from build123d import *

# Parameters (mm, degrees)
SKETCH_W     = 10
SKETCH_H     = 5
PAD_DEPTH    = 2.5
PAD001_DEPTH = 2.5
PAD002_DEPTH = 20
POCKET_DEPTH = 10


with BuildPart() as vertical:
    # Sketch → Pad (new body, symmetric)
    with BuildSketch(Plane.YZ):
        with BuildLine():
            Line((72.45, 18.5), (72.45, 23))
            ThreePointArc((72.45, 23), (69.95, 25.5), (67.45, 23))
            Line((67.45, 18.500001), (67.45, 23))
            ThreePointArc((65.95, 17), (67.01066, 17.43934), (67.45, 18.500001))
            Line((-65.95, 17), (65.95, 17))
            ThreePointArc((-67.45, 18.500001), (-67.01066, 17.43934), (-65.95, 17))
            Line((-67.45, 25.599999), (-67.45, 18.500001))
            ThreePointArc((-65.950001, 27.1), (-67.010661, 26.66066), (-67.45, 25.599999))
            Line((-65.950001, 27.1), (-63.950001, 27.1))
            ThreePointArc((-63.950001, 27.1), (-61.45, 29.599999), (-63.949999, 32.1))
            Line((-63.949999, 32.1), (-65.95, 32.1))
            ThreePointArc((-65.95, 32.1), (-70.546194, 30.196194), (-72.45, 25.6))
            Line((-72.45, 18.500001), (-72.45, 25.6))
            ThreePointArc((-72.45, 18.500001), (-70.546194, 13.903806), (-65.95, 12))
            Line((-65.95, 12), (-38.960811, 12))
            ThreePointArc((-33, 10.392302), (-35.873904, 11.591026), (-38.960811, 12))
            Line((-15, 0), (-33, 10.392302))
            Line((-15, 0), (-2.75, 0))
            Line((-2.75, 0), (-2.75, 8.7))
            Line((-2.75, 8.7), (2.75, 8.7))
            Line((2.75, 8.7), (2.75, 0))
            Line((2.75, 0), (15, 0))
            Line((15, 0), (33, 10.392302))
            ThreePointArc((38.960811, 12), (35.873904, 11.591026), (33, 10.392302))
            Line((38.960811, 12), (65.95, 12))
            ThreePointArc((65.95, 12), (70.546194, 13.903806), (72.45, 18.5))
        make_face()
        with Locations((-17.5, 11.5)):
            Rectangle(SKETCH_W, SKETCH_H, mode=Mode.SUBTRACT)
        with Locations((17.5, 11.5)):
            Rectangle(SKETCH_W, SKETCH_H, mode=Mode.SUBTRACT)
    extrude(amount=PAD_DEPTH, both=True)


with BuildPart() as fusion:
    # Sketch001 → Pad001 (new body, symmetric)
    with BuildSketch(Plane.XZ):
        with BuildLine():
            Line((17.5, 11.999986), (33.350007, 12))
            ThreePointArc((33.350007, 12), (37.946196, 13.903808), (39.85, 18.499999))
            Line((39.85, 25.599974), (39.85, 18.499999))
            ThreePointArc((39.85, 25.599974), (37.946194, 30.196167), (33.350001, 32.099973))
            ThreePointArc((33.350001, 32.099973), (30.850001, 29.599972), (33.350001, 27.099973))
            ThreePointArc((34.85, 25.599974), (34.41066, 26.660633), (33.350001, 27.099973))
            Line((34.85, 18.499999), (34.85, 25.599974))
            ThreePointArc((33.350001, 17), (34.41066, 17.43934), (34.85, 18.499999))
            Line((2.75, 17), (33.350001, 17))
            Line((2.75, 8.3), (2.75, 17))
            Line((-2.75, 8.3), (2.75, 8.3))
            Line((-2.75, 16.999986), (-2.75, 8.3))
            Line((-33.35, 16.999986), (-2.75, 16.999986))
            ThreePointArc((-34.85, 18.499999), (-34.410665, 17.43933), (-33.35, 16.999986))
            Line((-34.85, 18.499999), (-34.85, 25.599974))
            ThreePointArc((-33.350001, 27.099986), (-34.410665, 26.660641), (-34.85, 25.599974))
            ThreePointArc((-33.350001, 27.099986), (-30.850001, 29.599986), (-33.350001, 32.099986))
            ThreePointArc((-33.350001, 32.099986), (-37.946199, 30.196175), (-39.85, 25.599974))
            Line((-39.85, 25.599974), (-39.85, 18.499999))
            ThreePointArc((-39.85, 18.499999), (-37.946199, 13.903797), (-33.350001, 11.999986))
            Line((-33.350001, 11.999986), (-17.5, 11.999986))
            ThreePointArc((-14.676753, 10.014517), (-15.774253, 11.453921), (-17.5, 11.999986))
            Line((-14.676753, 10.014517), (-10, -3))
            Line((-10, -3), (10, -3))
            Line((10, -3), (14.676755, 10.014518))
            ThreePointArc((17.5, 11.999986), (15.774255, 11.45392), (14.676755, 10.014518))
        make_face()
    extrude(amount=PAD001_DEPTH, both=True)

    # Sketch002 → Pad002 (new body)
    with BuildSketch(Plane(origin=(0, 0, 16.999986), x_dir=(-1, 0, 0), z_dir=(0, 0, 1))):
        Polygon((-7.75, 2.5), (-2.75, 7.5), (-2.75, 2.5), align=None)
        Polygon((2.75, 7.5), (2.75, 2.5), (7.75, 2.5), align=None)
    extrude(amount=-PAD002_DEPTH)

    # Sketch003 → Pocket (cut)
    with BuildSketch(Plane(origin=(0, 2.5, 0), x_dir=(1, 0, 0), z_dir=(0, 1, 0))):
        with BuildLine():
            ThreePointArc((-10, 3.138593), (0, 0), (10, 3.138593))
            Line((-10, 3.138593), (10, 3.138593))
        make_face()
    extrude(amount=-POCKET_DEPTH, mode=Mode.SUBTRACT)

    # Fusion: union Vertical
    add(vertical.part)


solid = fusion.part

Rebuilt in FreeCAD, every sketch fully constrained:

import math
import FreeCAD as App
import Part
import Sketcher
from FreeCAD import Vector
Q = App.Units.Quantity


def add_polygon(sketch, points):
    """Adds a closed chain of lines whose ends are joined by coincident constraints."""
    first, n = sketch.GeometryCount, len(points)
    for a, b in zip(points, points[1:] + points[:1]):
        sketch.addGeometry(Part.LineSegment(App.Vector(*a, 0), App.Vector(*b, 0)), False)
    for i in range(n):
        sketch.addConstraint(Sketcher.Constraint("Coincident", first + i, 2, first + (i + 1) % n, 1))

doc = App.newDocument("Part")
body = doc.addObject("PartDesign::Body", "Body")

# Sketch on YZ plane
sketch1 = doc.addObject("Sketcher::SketchObject", "Sketch")
body.addObject(sketch1)
sketch1.AttachmentSupport = (doc.YZ_Plane, [""])
sketch1.MapMode = "FlatFace"
sketch1.addGeometry(Part.LineSegment(Vector(72.45, 18.5, 0), Vector(72.45, 23, 0)), False)  # 0
sketch1.addGeometry(Part.ArcOfCircle(Part.Circle(Vector(69.95, 23, 0), Vector(0, 0, 1), 2.5), math.radians(0), math.radians(180)), False)  # 1
sketch1.addGeometry(Part.LineSegment(Vector(67.45, 23, 0), Vector(67.45, 18.500001, 0)), False)  # 2
sketch1.addGeometry(Part.ArcOfCircle(Part.Circle(Vector(65.949999, 18.500001, 0), Vector(0, 0, 1), 1.500001), math.radians(-89.999978), math.radians(0.000016)), False)  # 3
sketch1.addGeometry(Part.LineSegment(Vector(65.95, 17, 0), Vector(-65.95, 17, 0)), False)  # 4
sketch1.addGeometry(Part.ArcOfCircle(Part.Circle(Vector(-65.949999, 18.500001, 0), Vector(0, 0, 1), 1.500001), math.radians(179.999984), math.radians(269.999978)), False)  # 5
sketch1.addGeometry(Part.LineSegment(Vector(-67.45, 18.500001, 0), Vector(-67.45, 25.599999, 0)), False)  # 6
sketch1.addGeometry(Part.ArcOfCircle(Part.Circle(Vector(-65.950001, 25.600001, 0), Vector(0, 0, 1), 1.499999), math.radians(89.999995), math.radians(180.000081)), False)  # 7
sketch1.addGeometry(Part.LineSegment(Vector(-65.950001, 27.1, 0), Vector(-63.950001, 27.1, 0)), False)  # 8
sketch1.addGeometry(Part.ArcOfCircle(Part.Circle(Vector(-63.95, 29.6, 0), Vector(0, 0, 1), 2.5), math.radians(-90.000023), math.radians(89.999977)), False)  # 9
sketch1.addGeometry(Part.LineSegment(Vector(-63.949999, 32.1, 0), Vector(-65.95, 32.1, 0)), False)  # 10
sketch1.addGeometry(Part.ArcOfCircle(Part.Circle(Vector(-65.95, 25.6, 0), Vector(0, 0, 1), 6.5), math.radians(90.000002), math.radians(179.999998)), False)  # 11
sketch1.addGeometry(Part.LineSegment(Vector(-72.45, 25.6, 0), Vector(-72.45, 18.500001, 0)), False)  # 12
sketch1.addGeometry(Part.ArcOfCircle(Part.Circle(Vector(-65.95, 18.5, 0), Vector(0, 0, 1), 6.5), math.radians(179.999994), math.radians(269.999998)), False)  # 13
sketch1.addGeometry(Part.LineSegment(Vector(-65.95, 12, 0), Vector(-38.960811, 12, 0)), False)  # 14
sketch1.addGeometry(Part.ArcOfCircle(Part.Circle(Vector(-38.960769, 0.145952, 0), Vector(0, 0, 1), 11.854048), math.radians(59.811485), math.radians(90.000203)), False)  # 15
sketch1.addGeometry(Part.LineSegment(Vector(-33, 10.392302, 0), Vector(-15, 0, 0)), False)  # 16
sketch1.addGeometry(Part.LineSegment(Vector(-15, 0, 0), Vector(-2.75, 0, 0)), False)  # 17
sketch1.addGeometry(Part.LineSegment(Vector(-2.75, 0, 0), Vector(-2.75, 8.7, 0)), False)  # 18
sketch1.addGeometry(Part.LineSegment(Vector(-2.75, 8.7, 0), Vector(2.75, 8.7, 0)), False)  # 19
sketch1.addGeometry(Part.LineSegment(Vector(2.75, 8.7, 0), Vector(2.75, 0, 0)), False)  # 20
sketch1.addGeometry(Part.LineSegment(Vector(2.75, 0, 0), Vector(15, 0, 0)), False)  # 21
sketch1.addGeometry(Part.LineSegment(Vector(15, 0, 0), Vector(33, 10.392302, 0)), False)  # 22
sketch1.addGeometry(Part.ArcOfCircle(Part.Circle(Vector(38.960769, 0.145952, 0), Vector(0, 0, 1), 11.854048), math.radians(89.999797), math.radians(120.188515)), False)  # 23
sketch1.addGeometry(Part.LineSegment(Vector(38.960811, 12, 0), Vector(65.95, 12, 0)), False)  # 24
sketch1.addGeometry(Part.ArcOfCircle(Part.Circle(Vector(65.95, 18.5, 0), Vector(0, 0, 1), 6.5), math.radians(-89.999998), math.radians(-0.000002)), False)  # 25
add_polygon(sketch1, [(-12.5, 9), (-22.5, 9), (-22.5, 14), (-12.5, 14)])  # lines 26-29
add_polygon(sketch1, [(22.5, 9), (12.5, 9), (12.5, 14), (22.5, 14)])  # lines 30-33
sketch1.addConstraint([
    Sketcher.Constraint("Tangent", 0, 2, 1, 1),
    Sketcher.Constraint("Tangent", 1, 2, 2, 1),
    Sketcher.Constraint("Tangent", 2, 2, 3, 2),
    Sketcher.Constraint("Tangent", 3, 1, 4, 1),
    Sketcher.Constraint("Tangent", 4, 2, 5, 2),
    Sketcher.Constraint("Tangent", 5, 1, 6, 1),
    Sketcher.Constraint("Tangent", 6, 2, 7, 2),
    Sketcher.Constraint("Tangent", 7, 1, 8, 1),
    Sketcher.Constraint("Tangent", 8, 2, 9, 1),
    Sketcher.Constraint("Tangent", 9, 2, 10, 1),
    Sketcher.Constraint("Tangent", 10, 2, 11, 1),
    Sketcher.Constraint("Tangent", 11, 2, 12, 1),
    Sketcher.Constraint("Tangent", 12, 2, 13, 1),
    Sketcher.Constraint("Tangent", 13, 2, 14, 1),
    Sketcher.Constraint("Coincident", 14, 2, 15, 2),
    Sketcher.Constraint("Coincident", 15, 1, 16, 1),
    Sketcher.Constraint("Coincident", 16, 2, 17, 1),
    Sketcher.Constraint("Coincident", 17, 2, 18, 1),
    Sketcher.Constraint("Coincident", 18, 2, 19, 1),
    Sketcher.Constraint("Coincident", 19, 2, 20, 1),
    Sketcher.Constraint("Coincident", 20, 2, 21, 1),
    Sketcher.Constraint("Coincident", 21, 2, 22, 1),
    Sketcher.Constraint("Coincident", 22, 2, 23, 2),
    Sketcher.Constraint("Coincident", 23, 1, 24, 1),
    Sketcher.Constraint("Tangent", 24, 2, 25, 1),
    Sketcher.Constraint("Tangent", 25, 2, 0, 1),
    Sketcher.Constraint("Vertical", 0),
    Sketcher.Constraint("Vertical", 2),
    Sketcher.Constraint("Horizontal", 4),
    Sketcher.Constraint("Vertical", 6),
    Sketcher.Constraint("Horizontal", 8),
    Sketcher.Constraint("Horizontal", 10),
    Sketcher.Constraint("Vertical", 12),
    Sketcher.Constraint("Horizontal", 14),
    Sketcher.Constraint("Horizontal", 17),
    Sketcher.Constraint("Vertical", 18),
    Sketcher.Constraint("Horizontal", 19),
    Sketcher.Constraint("Vertical", 20),
    Sketcher.Constraint("Horizontal", 21),
    Sketcher.Constraint("Horizontal", 24),
    Sketcher.Constraint("Horizontal", 26),
    Sketcher.Constraint("Vertical", 27),
    Sketcher.Constraint("Horizontal", 28),
    Sketcher.Constraint("Vertical", 29),
    Sketcher.Constraint("Horizontal", 30),
    Sketcher.Constraint("Vertical", 31),
    Sketcher.Constraint("Horizontal", 32),
    Sketcher.Constraint("Vertical", 33),
    Sketcher.Constraint("Coincident", 11, 3, 7, 3),
    Sketcher.Constraint("Coincident", 13, 3, 5, 3),
    Sketcher.Constraint("Coincident", 25, 3, 3, 3),
    Sketcher.Constraint("Equal", 3, 5),
    Sketcher.Constraint("Equal", 5, 7),
    Sketcher.Constraint("Equal", 1, 9),
    Sketcher.Constraint("Equal", 15, 23),
    Sketcher.Constraint("Symmetric", 17, 2, 20, 2, -1, 1),
    Sketcher.Constraint("Symmetric", 16, 2, 21, 2, -2),
    Sketcher.Constraint("Symmetric", 15, 1, 22, 2, -2),
    Sketcher.Constraint("Symmetric", 29, 2, 30, 2, -2),
    Sketcher.Constraint("Symmetric", 27, 2, 32, 2, -2),
    Sketcher.Constraint("Equal", 14, 24),
    Sketcher.Constraint("Radius", 1, Q("2.5 mm")),
    Sketcher.Constraint("Radius", 3, Q("1.500001 mm")),
    Sketcher.Constraint("DistanceX", 8, 1, 8, 2, Q("2 mm")),
    Sketcher.Constraint("DistanceX", 26, 2, 26, 1, Q("10 mm")),
    Sketcher.Constraint("DistanceY", 27, 1, 27, 2, Q("5 mm")),
    Sketcher.Constraint("Angle", 16, Q("-29.999993 deg")),
    Sketcher.Constraint("DistanceX", 4, 2, 4, 1, Q("131.9 mm")),
    Sketcher.Constraint("DistanceX", 19, 1, 19, 2, Q("5.5 mm")),
    Sketcher.Constraint("DistanceY", 0, 1, 0, 2, Q("4.5 mm")),
    Sketcher.Constraint("DistanceY", 12, 2, 12, 1, Q("7.099999 mm")),
    Sketcher.Constraint("DistanceY", 18, 1, 18, 2, Q("8.7 mm")),
    Sketcher.Constraint("DistanceY", -1, 1, 1, 3, Q("23 mm")),
    Sketcher.Constraint("DistanceX", 15, 1, -1, 1, Q("33 mm")),
    Sketcher.Constraint("DistanceX", 16, 2, -1, 1, Q("15 mm")),
    Sketcher.Constraint("DistanceY", -1, 1, 26, 2, Q("9 mm")),
    Sketcher.Constraint("DistanceX", 26, 2, -1, 1, Q("22.5 mm")),
    Sketcher.Constraint("DistanceX", -1, 1, 1, 3, Q("69.95 mm")),
    Sketcher.Constraint("Radius", 15, Q("11.854048 mm")),
    Sketcher.Constraint("DistanceX", 14, 1, 14, 2, Q("26.989189 mm")),
])
pad1 = doc.addObject("PartDesign::Pad", "Pad")
body.addObject(pad1)
pad1.Profile = sketch1
pad1.Length = 5
pad1.Midplane = True
body2 = doc.addObject("PartDesign::Body", "Body001")
body2.AllowCompound = True

# Sketch on XZ plane
sketch2 = doc.addObject("Sketcher::SketchObject", "Sketch001")
body2.addObject(sketch2)
sketch2.AttachmentSupport = (doc.getObject("XZ_Plane001"), [""])
sketch2.MapMode = "FlatFace"
sketch2.addGeometry([
    Part.LineSegment(Vector(17.5, 11.999986, 0), Vector(33.350007, 12, 0)),  # 0
    Part.ArcOfCircle(Part.Circle(Vector(33.35, 18.5, 0), Vector(0, 0, 1), 6.5), math.radians(-89.999936), math.radians(-0.000011)),  # 1
    Part.LineSegment(Vector(39.85, 18.499999, 0), Vector(39.85, 25.599974, 0)),  # 2
    Part.ArcOfCircle(Part.Circle(Vector(33.35, 25.599973, 0), Vector(0, 0, 1), 6.5), math.radians(0.000011), math.radians(89.999989)),  # 3
    Part.ArcOfCircle(Part.Circle(Vector(33.350001, 29.599973, 0), Vector(0, 0, 1), 2.5), math.radians(90), math.radians(270)),  # 4
    Part.ArcOfCircle(Part.Circle(Vector(33.349999, 25.599972, 0), Vector(0, 0, 1), 1.500001), math.radians(0.000061), math.radians(89.999939)),  # 5
    Part.LineSegment(Vector(34.85, 25.599974, 0), Vector(34.85, 18.499999, 0)),  # 6
    Part.ArcOfCircle(Part.Circle(Vector(33.349999, 18.500001, 0), Vector(0, 0, 1), 1.500001), math.radians(-89.999939), math.radians(-0.000061)),  # 7
    Part.LineSegment(Vector(33.350001, 17, 0), Vector(2.75, 17, 0)),  # 8
    Part.LineSegment(Vector(2.75, 17, 0), Vector(2.75, 8.3, 0)),  # 9
    Part.LineSegment(Vector(2.75, 8.3, 0), Vector(-2.75, 8.3, 0)),  # 10
    Part.LineSegment(Vector(-2.75, 8.3, 0), Vector(-2.75, 16.999986, 0)),  # 11
    Part.LineSegment(Vector(-2.75, 16.999986, 0), Vector(-33.35, 16.999986, 0)),  # 12
    Part.ArcOfCircle(Part.Circle(Vector(-33.350001, 18.499985, 0), Vector(0, 0, 1), 1.499999), math.radians(179.999461), math.radians(270.000043)),  # 13
    Part.LineSegment(Vector(-34.85, 18.499999, 0), Vector(-34.85, 25.599974, 0)),  # 14
    Part.ArcOfCircle(Part.Circle(Vector(-33.349999, 25.599985, 0), Vector(0, 0, 1), 1.500001), math.radians(90.000061), math.radians(180.000436)),  # 15
    Part.ArcOfCircle(Part.Circle(Vector(-33.350001, 29.599986, 0), Vector(0, 0, 1), 2.5), math.radians(-90), math.radians(90)),  # 16
    Part.ArcOfCircle(Part.Circle(Vector(-33.35, 25.599986, 0), Vector(0, 0, 1), 6.5), math.radians(90.000011), math.radians(180.000103)),  # 17
    Part.LineSegment(Vector(-39.85, 25.599974, 0), Vector(-39.85, 18.499999, 0)),  # 18
    Part.ArcOfCircle(Part.Circle(Vector(-33.35, 18.499986, 0), Vector(0, 0, 1), 6.5), math.radians(179.999888), math.radians(269.999989)),  # 19
    Part.LineSegment(Vector(-33.350001, 11.999986, 0), Vector(-17.5, 11.999986, 0)),  # 20
    Part.ArcOfCircle(Part.Circle(Vector(-17.5, 8.999987, 0), Vector(0, 0, 1), 2.999999), math.radians(19.765829), math.radians(90.000006)),  # 21
    Part.LineSegment(Vector(-14.676753, 10.014517, 0), Vector(-10, -3, 0)),  # 22
    Part.LineSegment(Vector(-10, -3, 0), Vector(10, -3, 0)),  # 23
    Part.LineSegment(Vector(10, -3, 0), Vector(14.676755, 10.014518, 0)),  # 24
    Part.ArcOfCircle(Part.Circle(Vector(17.500005, 8.999983, 0), Vector(0, 0, 1), 3.000003), math.radians(90.000087), math.radians(160.234089)),  # 25
], False)
sketch2.addConstraint([
    Sketcher.Constraint("Coincident", 0, 2, 1, 1),
    Sketcher.Constraint("Coincident", 1, 2, 2, 1),
    Sketcher.Constraint("Coincident", 2, 2, 3, 1),
    Sketcher.Constraint("Coincident", 3, 2, 4, 1),
    Sketcher.Constraint("Coincident", 4, 2, 5, 2),
    Sketcher.Constraint("Coincident", 5, 1, 6, 1),
    Sketcher.Constraint("Coincident", 6, 2, 7, 2),
    Sketcher.Constraint("Coincident", 7, 1, 8, 1),
    Sketcher.Constraint("Coincident", 8, 2, 9, 1),
    Sketcher.Constraint("Coincident", 9, 2, 10, 1),
    Sketcher.Constraint("Coincident", 10, 2, 11, 1),
    Sketcher.Constraint("Coincident", 11, 2, 12, 1),
    Sketcher.Constraint("Coincident", 12, 2, 13, 2),
    Sketcher.Constraint("Coincident", 13, 1, 14, 1),
    Sketcher.Constraint("Coincident", 14, 2, 15, 2),
    Sketcher.Constraint("Coincident", 15, 1, 16, 1),
    Sketcher.Constraint("Coincident", 16, 2, 17, 1),
    Sketcher.Constraint("Coincident", 17, 2, 18, 1),
    Sketcher.Constraint("Coincident", 18, 2, 19, 1),
    Sketcher.Constraint("Coincident", 19, 2, 20, 1),
    Sketcher.Constraint("Coincident", 20, 2, 21, 2),
    Sketcher.Constraint("Coincident", 21, 1, 22, 1),
    Sketcher.Constraint("Coincident", 22, 2, 23, 1),
    Sketcher.Constraint("Coincident", 23, 2, 24, 1),
    Sketcher.Constraint("Coincident", 24, 2, 25, 2),
    Sketcher.Constraint("Coincident", 25, 1, 0, 1),
    Sketcher.Constraint("Vertical", 2),
    Sketcher.Constraint("Vertical", 6),
    Sketcher.Constraint("Horizontal", 8),
    Sketcher.Constraint("Vertical", 9),
    Sketcher.Constraint("Horizontal", 10),
    Sketcher.Constraint("Vertical", 11),
    Sketcher.Constraint("Horizontal", 12),
    Sketcher.Constraint("Vertical", 14),
    Sketcher.Constraint("Vertical", 18),
    Sketcher.Constraint("Horizontal", 20),
    Sketcher.Constraint("Horizontal", 23),
    Sketcher.Constraint("Coincident", 5, 3, 3, 3),
    Sketcher.Constraint("Coincident", 7, 3, 1, 3),
    Sketcher.Constraint("Coincident", 17, 3, 15, 3),
    Sketcher.Constraint("Coincident", 19, 3, 13, 3),
    Sketcher.Constraint("Radius", 21, Q("2.999999 mm")),
    Sketcher.Constraint("Radius", 1, Q("6.5 mm")),
    Sketcher.Constraint("Radius", 3, Q("6.5 mm")),
    Sketcher.Constraint("Radius", 4, Q("2.5 mm")),
    Sketcher.Constraint("Radius", 13, Q("1.499999 mm")),
    Sketcher.Constraint("Radius", 15, Q("1.500001 mm")),
    Sketcher.Constraint("Radius", 16, Q("2.5 mm")),
    Sketcher.Constraint("DistanceX", 23, 1, 23, 2, Q("20 mm")),
    Sketcher.Constraint("DistanceX", 8, 2, 8, 1, Q("30.600001 mm")),
    Sketcher.Constraint("DistanceX", 10, 2, 10, 1, Q("5.5 mm")),
    Sketcher.Constraint("DistanceX", 12, 2, 12, 1, Q("30.6 mm")),
    Sketcher.Constraint("DistanceY", 9, 2, 9, 1, Q("8.7 mm")),
    Sketcher.Constraint("DistanceY", -1, 1, 0, 2, Q("12 mm")),
    Sketcher.Constraint("DistanceX", 22, 2, -1, 1, Q("10 mm")),
    Sketcher.Constraint("DistanceY", 22, 2, -1, 1, Q("3 mm")),
    Sketcher.Constraint("DistanceY", 2, 2, 4, 3, Q("3.999999 mm")),
    Sketcher.Constraint("DistanceY", 5, 1, 4, 3, Q("3.999999 mm")),
    Sketcher.Constraint("DistanceX", 20, 1, 20, 2, Q("15.850001 mm")),
    Sketcher.Constraint("DistanceX", 21, 3, -1, 1, Q("17.5 mm")),
    Sketcher.Constraint("DistanceY", -1, 1, 1, 2, Q("18.499999 mm")),
    Sketcher.Constraint("DistanceY", -1, 1, 6, 2, Q("18.499999 mm")),
    Sketcher.Constraint("DistanceY", -1, 1, 13, 1, Q("18.499999 mm")),
    Sketcher.Constraint("DistanceY", -1, 1, 18, 2, Q("18.499999 mm")),
    Sketcher.Constraint("DistanceX", 20, 2, -1, 1, Q("17.5 mm")),
    Sketcher.Constraint("DistanceX", -1, 1, 25, 1, Q("17.5 mm")),
    Sketcher.Constraint("DistanceX", 13, 3, 7, 3, Q("66.700001 mm")),
    Sketcher.Constraint("DistanceY", 13, 3, 15, 3, Q("7.100001 mm")),
    Sketcher.Constraint("DistanceX", 15, 3, 4, 3, Q("66.7 mm")),
    Sketcher.Constraint("DistanceX", 16, 3, 4, 3, Q("66.700002 mm")),
    Sketcher.Constraint("DistanceX", 3, 2, 2, 2, Q("6.499999 mm")),
    Sketcher.Constraint("DistanceX", 4, 2, 2, 2, Q("6.499999 mm")),
    Sketcher.Constraint("DistanceX", 7, 1, 6, 2, Q("1.499999 mm")),
    Sketcher.Constraint("DistanceX", 14, 2, 15, 1, Q("1.499999 mm")),
    Sketcher.Constraint("DistanceX", 14, 2, 16, 2, Q("1.499999 mm")),
    Sketcher.Constraint("DistanceX", 13, 1, 19, 2, Q("1.499999 mm")),
    Sketcher.Constraint("Radius", 25, Q("3.000003 mm")),
    Sketcher.Constraint("DistanceY", 2, 1, 2, 2, Q("7.099975 mm")),
    Sketcher.Constraint("DistanceY", 11, 1, 11, 2, Q("8.699986 mm")),
    Sketcher.Constraint("DistanceY", 14, 1, 14, 2, Q("7.099975 mm")),
    Sketcher.Constraint("DistanceY", 18, 2, 18, 1, Q("7.099975 mm")),
    Sketcher.Constraint("DistanceY", -1, 1, 24, 2, Q("10.014518 mm")),
    Sketcher.Constraint("DistanceY", 25, 3, 5, 3, Q("16.59999 mm")),
    Sketcher.Constraint("DistanceY", 21, 3, 21, 1, Q("1.01453 mm")),
    Sketcher.Constraint("Distance", 0, Q("15.850007 mm")),
    Sketcher.Constraint("Distance", 24, Q("13.829306 mm")),
])
pad2 = doc.addObject("PartDesign::Pad", "Pad001")
body2.addObject(pad2)
pad2.Profile = sketch2
pad2.Length = 5
pad2.Midplane = True

# Sketch on XY plane
sketch3 = doc.addObject("Sketcher::SketchObject", "Sketch002")
body2.addObject(sketch3)
sketch3.AttachmentSupport = (doc.getObject("XY_Plane001"), [""])
sketch3.MapMode = "FlatFace"
sketch3.AttachmentOffset = App.Placement(Vector(0, 0, 16.999986), App.Rotation())
add_polygon(sketch3, [(2.75, -7.5), (7.75, -2.5), (2.75, -2.5)])  # lines 0-2
add_polygon(sketch3, [(-2.75, -7.5), (-2.75, -2.5), (-7.75, -2.5)])  # lines 3-5
sketch3.addConstraint([
    Sketcher.Constraint("Horizontal", 1),
    Sketcher.Constraint("Vertical", 2),
    Sketcher.Constraint("Vertical", 3),
    Sketcher.Constraint("Horizontal", 4),
    Sketcher.Constraint("Symmetric", 1, 2, 3, 2, -2),
    Sketcher.Constraint("Perpendicular", 0, 5),
    Sketcher.Constraint("Horizontal", 2, 2, 5, 2),
    Sketcher.Constraint("Equal", 1, 4),
    Sketcher.Constraint("DistanceX", 1, 2, 1, 1, Q("5 mm")),
    Sketcher.Constraint("DistanceY", 0, 2, -1, 1, Q("2.5 mm")),
    Sketcher.Constraint("DistanceX", 3, 2, 1, 2, Q("5.5 mm")),
])
pad3 = doc.addObject("PartDesign::Pad", "Pad002")
body2.addObject(pad3)
pad3.Profile = sketch3
pad3.Length = 20
pad3.Reversed = True

# Sketch on XZ plane
sketch4 = doc.addObject("Sketcher::SketchObject", "Sketch003")
body2.addObject(sketch4)
sketch4.AttachmentSupport = (doc.getObject("XZ_Plane001"), [""])
sketch4.MapMode = "FlatFace"
sketch4.AttachmentOffset = App.Placement(Vector(0, 0, -2.5), App.Rotation())
sketch4.addGeometry([
    Part.ArcOfCircle(Part.Circle(Vector(0, -17.500002, 0), Vector(0, 0, 1), 17.500002), math.radians(55.150099), math.radians(124.849901)),
    Part.LineSegment(Vector(10, -3.138593, 0), Vector(-10, -3.138593, 0)),
], False)
sketch4.addConstraint([
    Sketcher.Constraint("Coincident", 0, 1, 1, 1),
    Sketcher.Constraint("Coincident", 1, 2, 0, 2),
    Sketcher.Constraint("Horizontal", 1),
    Sketcher.Constraint("PointOnObject", 0, 3, -2),
    Sketcher.Constraint("Radius", 0, Q("17.500002 mm")),
    Sketcher.Constraint("DistanceX", 1, 2, 1, 1, Q("20 mm")),
    Sketcher.Constraint("DistanceY", 0, 3, -1, 1, Q("17.500002 mm")),
])
pocket1 = doc.addObject("PartDesign::Pocket", "Pocket")
body2.addObject(pocket1)
pocket1.Profile = sketch4
pocket1.Length = 10
pocket1.Reversed = True
doc.recompute()

boolean = doc.addObject("PartDesign::Boolean", "Boolean")
body2.addObject(boolean)
boolean.Type = "Fuse"
boolean.addObjects([body])

doc.recompute()
